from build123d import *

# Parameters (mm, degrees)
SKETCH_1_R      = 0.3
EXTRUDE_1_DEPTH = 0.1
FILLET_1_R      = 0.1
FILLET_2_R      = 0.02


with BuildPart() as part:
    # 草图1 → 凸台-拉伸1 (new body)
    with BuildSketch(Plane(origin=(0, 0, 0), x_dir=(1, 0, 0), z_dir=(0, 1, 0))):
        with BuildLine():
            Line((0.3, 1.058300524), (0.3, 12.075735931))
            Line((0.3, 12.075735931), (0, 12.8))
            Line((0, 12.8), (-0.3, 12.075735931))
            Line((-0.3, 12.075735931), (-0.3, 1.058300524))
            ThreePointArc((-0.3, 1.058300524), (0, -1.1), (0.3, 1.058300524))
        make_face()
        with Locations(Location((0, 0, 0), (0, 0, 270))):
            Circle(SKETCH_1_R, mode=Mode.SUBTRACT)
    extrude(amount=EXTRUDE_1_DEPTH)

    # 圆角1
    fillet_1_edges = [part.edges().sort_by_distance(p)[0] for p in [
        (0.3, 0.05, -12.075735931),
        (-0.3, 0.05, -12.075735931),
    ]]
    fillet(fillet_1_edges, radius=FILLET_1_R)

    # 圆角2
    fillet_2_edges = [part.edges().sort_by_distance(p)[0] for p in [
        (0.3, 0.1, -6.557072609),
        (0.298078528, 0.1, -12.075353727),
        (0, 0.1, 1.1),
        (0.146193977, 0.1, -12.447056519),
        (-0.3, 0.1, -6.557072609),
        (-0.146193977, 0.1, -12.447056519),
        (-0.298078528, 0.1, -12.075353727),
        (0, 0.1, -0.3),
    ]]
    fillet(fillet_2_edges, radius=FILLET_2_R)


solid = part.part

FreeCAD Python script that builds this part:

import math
import FreeCAD as App
import Part
import Sketcher

V = App.Vector
Q = App.Units.Quantity


def edges_at(feature, points):
    """Names of the edges that pass closest to the given points."""
    edges = feature.Shape.Edges
    near = lambda p: min(range(len(edges)), key=lambda i: edges[i].distToShape(Part.Vertex(*p))[0])
    return sorted({f"Edge{near(p) + 1}" for p in points})

doc = App.newDocument("Part")
body = doc.addObject("PartDesign::Body", "Body")

# Sketch on XZ plane
sketch1 = body.newObject("Sketcher::SketchObject", "Sketch")
sketch1.AttachmentSupport = (doc.getObject("XZ_Plane"), [""])
sketch1.MapMode = "FlatFace"
sketch1.addGeometry(Part.LineSegment(V(0.3, -1.06, 0), V(0.3, -12.08, 0)), False)
sketch1.addGeometry(Part.LineSegment(V(0.3, -12.08, 0), V(0, -12.8, 0)), False)
sketch1.addGeometry(Part.LineSegment(V(0, -12.8, 0), V(-0.3, -12.08, 0)), False)
sketch1.addGeometry(Part.LineSegment(V(-0.3, -12.08, 0), V(-0.3, -1.06, 0)), False)
sketch1.addGeometry(Part.ArcOfCircle(Part.Circle(V(0, 0, 0), V(0, 0, 1), 1.1), math.radians(-74), math.radians(254)), False)
sketch1.addGeometry(Part.Circle(V(0, 0, 0), V(0, 0, 1), 0.3), False)
sketch1.addConstraint(Sketcher.Constraint("Coincident", 0, 2, 1, 1))
sketch1.addConstraint(Sketcher.Constraint("Coincident", 1, 2, 2, 1))
sketch1.addConstraint(Sketcher.Constraint("Coincident", 2, 2, 3, 1))
sketch1.addConstraint(Sketcher.Constraint("Coincident", 3, 2, 4, 2))
sketch1.addConstraint(Sketcher.Constraint("Coincident", 4, 1, 0, 1))
sketch1.addConstraint(Sketcher.Constraint("Vertical", 0))
sketch1.addConstraint(Sketcher.Constraint("Vertical", 3))
sketch1.addConstraint(Sketcher.Constraint("Coincident", 4, 3, -1, 1))
sketch1.addConstraint(Sketcher.Constraint("Coincident", 5, 3, -1, 1))
sketch1.addConstraint(Sketcher.Constraint("Symmetric", 0, 2, 2, 2, -2))
sketch1.addConstraint(Sketcher.Constraint("PointOnObject", 1, 2, -2))
sketch1.addConstraint(Sketcher.Constraint("Diameter", 5, 0.6))
sketch1.addConstraint(Sketcher.Constraint("Radius", 4, 1.1))
sketch1.addConstraint(Sketcher.Constraint("Angle", 1, Q("-112.5 deg")))
sketch1.addConstraint(Sketcher.Constraint("DistanceX", -1, 1, 0, 2, 0.3))
sketch1.addConstraint(Sketcher.Constraint("DistanceY", 1, 2, -1, 1, 12.8))
pad1 = body.newObject("PartDesign::Pad", "Pad")
pad1.Profile = sketch1
pad1.Length = 0.1
pad1.Reversed = True
doc.recompute()

fillet = body.newObject("PartDesign::Fillet", "Fillet")
fillet.Base = (pad1, edges_at(pad1, [(0.3, 0.05, -12.076), (-0.3, 0.05, -12.076)]))
fillet.Radius = 0.1
doc.recompute()

fillet2 = body.newObject("PartDesign::Fillet", "Fillet001")
fillet2.Base = (fillet, edges_at(fillet, [
    (0.3, 0.1, -6.557),
    (0.298, 0.1, -12.075),
    (0, 0.1, 1.1),
    (0.146, 0.1, -12.447),
    (-0.3, 0.1, -6.557),
    (-0.146, 0.1, -12.447),
    (-0.298, 0.1, -12.075),
    (0, 0.1, -0.3),
]))
fillet2.Radius = 0.02

doc.recompute()
